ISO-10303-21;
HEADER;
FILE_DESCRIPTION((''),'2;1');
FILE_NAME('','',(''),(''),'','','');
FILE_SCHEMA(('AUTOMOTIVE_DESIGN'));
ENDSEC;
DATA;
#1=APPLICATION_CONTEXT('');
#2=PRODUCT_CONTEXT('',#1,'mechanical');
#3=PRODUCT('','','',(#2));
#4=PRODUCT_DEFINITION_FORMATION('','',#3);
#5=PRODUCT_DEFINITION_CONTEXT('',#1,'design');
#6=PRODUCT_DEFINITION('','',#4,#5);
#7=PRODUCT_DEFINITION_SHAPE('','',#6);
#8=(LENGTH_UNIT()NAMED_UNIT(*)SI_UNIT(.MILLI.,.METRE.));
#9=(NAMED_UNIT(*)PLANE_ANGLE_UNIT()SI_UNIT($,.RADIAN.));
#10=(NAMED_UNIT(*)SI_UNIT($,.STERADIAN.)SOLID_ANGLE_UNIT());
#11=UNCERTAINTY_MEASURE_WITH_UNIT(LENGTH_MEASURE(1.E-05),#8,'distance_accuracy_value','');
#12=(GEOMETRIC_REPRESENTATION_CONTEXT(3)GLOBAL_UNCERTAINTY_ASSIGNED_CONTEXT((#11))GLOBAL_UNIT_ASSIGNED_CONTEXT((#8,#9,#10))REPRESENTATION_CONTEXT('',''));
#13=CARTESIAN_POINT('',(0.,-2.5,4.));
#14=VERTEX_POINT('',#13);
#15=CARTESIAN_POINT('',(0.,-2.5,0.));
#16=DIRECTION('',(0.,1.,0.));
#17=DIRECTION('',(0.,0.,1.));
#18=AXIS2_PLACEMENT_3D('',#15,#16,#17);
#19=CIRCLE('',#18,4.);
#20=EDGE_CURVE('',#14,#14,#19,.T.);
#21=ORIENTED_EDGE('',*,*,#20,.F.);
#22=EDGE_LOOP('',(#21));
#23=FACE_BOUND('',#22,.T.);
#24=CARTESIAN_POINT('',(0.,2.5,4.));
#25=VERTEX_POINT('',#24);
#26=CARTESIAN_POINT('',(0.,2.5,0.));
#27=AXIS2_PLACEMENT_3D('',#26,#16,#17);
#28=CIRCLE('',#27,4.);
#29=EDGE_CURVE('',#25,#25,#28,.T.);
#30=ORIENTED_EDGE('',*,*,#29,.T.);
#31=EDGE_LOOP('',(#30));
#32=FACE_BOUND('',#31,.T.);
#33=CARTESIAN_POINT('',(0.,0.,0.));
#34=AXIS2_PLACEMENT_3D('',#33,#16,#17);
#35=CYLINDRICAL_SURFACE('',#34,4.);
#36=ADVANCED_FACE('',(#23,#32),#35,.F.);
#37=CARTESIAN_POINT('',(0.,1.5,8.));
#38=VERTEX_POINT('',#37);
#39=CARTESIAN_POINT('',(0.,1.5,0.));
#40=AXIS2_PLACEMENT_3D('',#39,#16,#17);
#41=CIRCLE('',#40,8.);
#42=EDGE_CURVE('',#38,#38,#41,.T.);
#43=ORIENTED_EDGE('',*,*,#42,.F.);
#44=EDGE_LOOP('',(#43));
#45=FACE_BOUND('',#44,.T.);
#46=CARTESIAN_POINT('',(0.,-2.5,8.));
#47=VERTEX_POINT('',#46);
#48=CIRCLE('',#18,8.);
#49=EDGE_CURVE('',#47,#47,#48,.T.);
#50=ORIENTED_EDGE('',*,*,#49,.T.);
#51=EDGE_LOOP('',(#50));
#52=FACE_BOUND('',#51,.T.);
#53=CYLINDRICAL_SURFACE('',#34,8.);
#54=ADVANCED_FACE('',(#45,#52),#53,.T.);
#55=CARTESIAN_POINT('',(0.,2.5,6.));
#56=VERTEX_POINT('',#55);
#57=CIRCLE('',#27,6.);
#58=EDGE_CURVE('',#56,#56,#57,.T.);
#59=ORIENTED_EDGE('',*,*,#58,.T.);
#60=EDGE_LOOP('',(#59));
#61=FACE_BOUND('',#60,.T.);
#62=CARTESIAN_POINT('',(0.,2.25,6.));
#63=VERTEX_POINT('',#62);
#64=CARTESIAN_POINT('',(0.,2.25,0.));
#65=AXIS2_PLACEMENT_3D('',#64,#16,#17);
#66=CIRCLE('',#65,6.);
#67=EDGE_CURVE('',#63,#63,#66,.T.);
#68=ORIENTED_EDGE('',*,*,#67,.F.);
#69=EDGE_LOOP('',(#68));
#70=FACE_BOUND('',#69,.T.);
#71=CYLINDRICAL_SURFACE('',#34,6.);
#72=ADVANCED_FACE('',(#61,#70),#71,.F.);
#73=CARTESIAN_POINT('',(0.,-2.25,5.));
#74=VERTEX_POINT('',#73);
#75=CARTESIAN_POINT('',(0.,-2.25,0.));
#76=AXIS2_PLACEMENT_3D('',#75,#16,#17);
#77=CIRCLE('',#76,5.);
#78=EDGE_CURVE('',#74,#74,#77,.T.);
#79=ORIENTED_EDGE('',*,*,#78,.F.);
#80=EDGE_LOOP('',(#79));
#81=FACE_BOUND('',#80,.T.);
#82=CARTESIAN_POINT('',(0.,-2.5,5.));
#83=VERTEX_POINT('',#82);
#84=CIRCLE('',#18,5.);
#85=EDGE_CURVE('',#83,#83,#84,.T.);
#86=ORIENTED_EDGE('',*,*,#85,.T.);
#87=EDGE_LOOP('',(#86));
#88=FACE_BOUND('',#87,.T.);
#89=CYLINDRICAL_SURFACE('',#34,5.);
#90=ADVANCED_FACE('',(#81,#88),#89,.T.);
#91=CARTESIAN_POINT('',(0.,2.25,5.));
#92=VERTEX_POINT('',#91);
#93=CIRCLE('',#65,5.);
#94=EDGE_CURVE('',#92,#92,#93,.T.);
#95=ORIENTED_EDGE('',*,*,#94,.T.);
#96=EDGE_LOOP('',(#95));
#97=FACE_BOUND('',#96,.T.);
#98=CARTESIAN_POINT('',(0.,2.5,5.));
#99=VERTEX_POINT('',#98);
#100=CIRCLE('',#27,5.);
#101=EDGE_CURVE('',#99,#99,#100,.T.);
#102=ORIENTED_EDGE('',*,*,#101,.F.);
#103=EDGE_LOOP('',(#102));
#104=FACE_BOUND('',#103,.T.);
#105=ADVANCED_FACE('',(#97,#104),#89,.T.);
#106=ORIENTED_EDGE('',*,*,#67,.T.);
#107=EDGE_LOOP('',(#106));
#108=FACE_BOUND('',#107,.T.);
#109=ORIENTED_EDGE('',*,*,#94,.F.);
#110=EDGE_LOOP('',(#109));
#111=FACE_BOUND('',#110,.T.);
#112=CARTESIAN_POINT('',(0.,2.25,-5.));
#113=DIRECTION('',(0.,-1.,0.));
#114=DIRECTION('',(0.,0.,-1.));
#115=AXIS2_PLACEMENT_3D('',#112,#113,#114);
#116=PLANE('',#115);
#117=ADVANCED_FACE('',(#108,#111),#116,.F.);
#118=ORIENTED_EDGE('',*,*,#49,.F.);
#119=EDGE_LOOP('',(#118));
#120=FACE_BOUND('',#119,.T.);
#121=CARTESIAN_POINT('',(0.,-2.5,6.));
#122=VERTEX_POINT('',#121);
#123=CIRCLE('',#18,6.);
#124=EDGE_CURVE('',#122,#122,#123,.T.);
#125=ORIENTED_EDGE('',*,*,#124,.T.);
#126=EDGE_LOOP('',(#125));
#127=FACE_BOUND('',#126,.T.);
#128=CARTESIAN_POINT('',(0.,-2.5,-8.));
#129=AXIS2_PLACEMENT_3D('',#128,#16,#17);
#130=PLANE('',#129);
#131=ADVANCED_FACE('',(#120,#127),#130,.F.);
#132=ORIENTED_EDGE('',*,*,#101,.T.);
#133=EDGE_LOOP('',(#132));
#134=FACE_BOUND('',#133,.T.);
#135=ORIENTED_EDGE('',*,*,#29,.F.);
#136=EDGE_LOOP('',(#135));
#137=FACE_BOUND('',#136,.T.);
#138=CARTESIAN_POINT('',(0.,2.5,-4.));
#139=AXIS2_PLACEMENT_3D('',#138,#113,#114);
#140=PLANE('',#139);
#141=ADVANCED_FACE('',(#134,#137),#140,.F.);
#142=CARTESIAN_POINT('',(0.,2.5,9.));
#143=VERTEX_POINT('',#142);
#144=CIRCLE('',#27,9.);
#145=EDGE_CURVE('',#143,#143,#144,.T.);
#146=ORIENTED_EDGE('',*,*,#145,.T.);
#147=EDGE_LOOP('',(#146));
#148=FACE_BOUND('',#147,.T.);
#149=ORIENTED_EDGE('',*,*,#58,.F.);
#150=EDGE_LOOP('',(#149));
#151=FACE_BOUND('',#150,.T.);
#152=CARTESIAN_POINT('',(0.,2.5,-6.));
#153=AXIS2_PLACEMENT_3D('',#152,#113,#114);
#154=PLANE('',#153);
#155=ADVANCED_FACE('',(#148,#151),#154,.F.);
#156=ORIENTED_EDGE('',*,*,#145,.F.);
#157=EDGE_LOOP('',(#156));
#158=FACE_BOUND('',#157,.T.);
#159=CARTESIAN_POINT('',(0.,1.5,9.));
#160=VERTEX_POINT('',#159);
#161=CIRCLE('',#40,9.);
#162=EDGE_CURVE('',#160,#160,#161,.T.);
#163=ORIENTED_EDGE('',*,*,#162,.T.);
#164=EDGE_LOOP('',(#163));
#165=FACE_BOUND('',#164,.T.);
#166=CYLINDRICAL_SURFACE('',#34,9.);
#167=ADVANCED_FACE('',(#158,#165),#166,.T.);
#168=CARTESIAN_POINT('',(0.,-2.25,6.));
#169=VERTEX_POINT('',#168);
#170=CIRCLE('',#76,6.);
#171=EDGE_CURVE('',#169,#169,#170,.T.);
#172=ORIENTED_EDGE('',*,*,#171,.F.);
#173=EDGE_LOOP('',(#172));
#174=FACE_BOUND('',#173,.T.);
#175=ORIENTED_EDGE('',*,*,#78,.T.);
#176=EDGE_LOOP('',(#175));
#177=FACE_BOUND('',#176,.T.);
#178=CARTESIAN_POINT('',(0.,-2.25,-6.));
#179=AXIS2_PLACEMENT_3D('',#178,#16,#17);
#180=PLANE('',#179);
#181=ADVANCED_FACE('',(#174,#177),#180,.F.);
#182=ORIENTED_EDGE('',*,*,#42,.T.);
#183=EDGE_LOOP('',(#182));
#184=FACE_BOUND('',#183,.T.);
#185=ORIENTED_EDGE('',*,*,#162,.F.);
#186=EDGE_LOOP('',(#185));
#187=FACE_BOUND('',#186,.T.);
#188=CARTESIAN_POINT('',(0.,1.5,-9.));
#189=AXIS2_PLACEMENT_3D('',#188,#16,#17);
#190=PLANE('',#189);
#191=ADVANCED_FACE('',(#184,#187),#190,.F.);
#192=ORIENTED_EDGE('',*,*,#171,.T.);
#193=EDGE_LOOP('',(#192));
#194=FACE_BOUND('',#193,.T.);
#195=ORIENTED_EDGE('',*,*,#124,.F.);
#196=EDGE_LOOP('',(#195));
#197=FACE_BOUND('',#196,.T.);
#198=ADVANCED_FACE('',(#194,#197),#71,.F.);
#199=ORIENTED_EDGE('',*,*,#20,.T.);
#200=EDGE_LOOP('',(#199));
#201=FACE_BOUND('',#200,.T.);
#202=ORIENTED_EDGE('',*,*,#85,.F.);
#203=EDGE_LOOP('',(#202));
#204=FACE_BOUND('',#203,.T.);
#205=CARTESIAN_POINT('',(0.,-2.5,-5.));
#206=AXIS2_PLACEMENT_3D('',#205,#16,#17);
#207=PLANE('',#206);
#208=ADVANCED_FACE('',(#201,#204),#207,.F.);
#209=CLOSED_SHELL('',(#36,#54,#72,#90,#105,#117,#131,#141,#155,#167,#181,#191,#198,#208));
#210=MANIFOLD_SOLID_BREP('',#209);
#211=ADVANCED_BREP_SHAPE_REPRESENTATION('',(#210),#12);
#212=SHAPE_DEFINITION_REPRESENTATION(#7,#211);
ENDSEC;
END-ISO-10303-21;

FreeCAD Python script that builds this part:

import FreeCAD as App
import Part
import Sketcher

V = App.Vector

doc = App.newDocument("Part")
body = doc.addObject("PartDesign::Body", "Body")

# Sketch on YZ plane
sketch1 = doc.addObject("Sketcher::SketchObject", "Sketch")
body.addObject(sketch1)
sketch1.AttachmentSupport = (doc.YZ_Plane, [""])
sketch1.MapMode = "FlatFace"
sketch1.addGeometry(Part.LineSegment(V(1.5, -9, 0), V(2.5, -9, 0)), False)
sketch1.addGeometry(Part.LineSegment(V(2.5, -9, 0), V(2.5, -6, 0)), False)
sketch1.addGeometry(Part.LineSegment(V(2.5, -6, 0), V(2.25, -6, 0)), False)
sketch1.addGeometry(Part.LineSegment(V(2.25, -6, 0), V(2.25, -5, 0)), False)
sketch1.addGeometry(Part.LineSegment(V(2.25, -5, 0), V(2.5, -5, 0)), False)
sketch1.addGeometry(Part.LineSegment(V(2.5, -5, 0), V(2.5, -4, 0)), False)
sketch1.addGeometry(Part.LineSegment(V(2.5, -4, 0), V(-2.5, -4, 0)), False)
sketch1.addGeometry(Part.LineSegment(V(-2.5, -4, 0), V(-2.5, -5, 0)), False)
sketch1.addGeometry(Part.LineSegment(V(-2.5, -5, 0), V(-2.25, -5, 0)), False)
sketch1.addGeometry(Part.LineSegment(V(-2.25, -5, 0), V(-2.25, -6, 0)), False)
sketch1.addGeometry(Part.LineSegment(V(-2.25, -6, 0), V(-2.5, -6, 0)), False)
sketch1.addGeometry(Part.LineSegment(V(-2.5, -6, 0), V(-2.5, -8, 0)), False)
sketch1.addGeometry(Part.LineSegment(V(-2.5, -8, 0), V(1.5, -8, 0)), False)
sketch1.addGeometry(Part.LineSegment(V(1.5, -8, 0), V(1.5, -9, 0)), False)
sketch1.addConstraint(Sketcher.Constraint("Coincident", 0, 2, 1, 1))
sketch1.addConstraint(Sketcher.Constraint("Coincident", 1, 2, 2, 1))
sketch1.addConstraint(Sketcher.Constraint("Coincident", 2, 2, 3, 1))
sketch1.addConstraint(Sketcher.Constraint("Coincident", 3, 2, 4, 1))
sketch1.addConstraint(Sketcher.Constraint("Coincident", 4, 2, 5, 1))
sketch1.addConstraint(Sketcher.Constraint("Coincident", 5, 2, 6, 1))
sketch1.addConstraint(Sketcher.Constraint("Coincident", 6, 2, 7, 1))
sketch1.addConstraint(Sketcher.Constraint("Coincident", 7, 2, 8, 1))
sketch1.addConstraint(Sketcher.Constraint("Coincident", 8, 2, 9, 1))
sketch1.addConstraint(Sketcher.Constraint("Coincident", 9, 2, 10, 1))
sketch1.addConstraint(Sketcher.Constraint("Coincident", 10, 2, 11, 1))
sketch1.addConstraint(Sketcher.Constraint("Coincident", 11, 2, 12, 1))
sketch1.addConstraint(Sketcher.Constraint("Coincident", 12, 2, 13, 1))
sketch1.addConstraint(Sketcher.Constraint("Coincident", 13, 2, 0, 1))
sketch1.addConstraint(Sketcher.Constraint("Horizontal", 0))
sketch1.addConstraint(Sketcher.Constraint("Vertical", 1))
sketch1.addConstraint(Sketcher.Constraint("Horizontal", 2))
sketch1.addConstraint(Sketcher.Constraint("Vertical", 3))
sketch1.addConstraint(Sketcher.Constraint("Horizontal", 4))
sketch1.addConstraint(Sketcher.Constraint("Vertical", 5))
sketch1.addConstraint(Sketcher.Constraint("Horizontal", 6))
sketch1.addConstraint(Sketcher.Constraint("Vertical", 7))
sketch1.addConstraint(Sketcher.Constraint("Horizontal", 8))
sketch1.addConstraint(Sketcher.Constraint("Vertical", 9))
sketch1.addConstraint(Sketcher.Constraint("Horizontal", 10))
sketch1.addConstraint(Sketcher.Constraint("Vertical", 11))
sketch1.addConstraint(Sketcher.Constraint("Horizontal", 12))
sketch1.addConstraint(Sketcher.Constraint("Vertical", 13))
sketch1.addConstraint(Sketcher.Constraint("Symmetric", 4, 2, 7, 2, -2))
sketch1.addConstraint(Sketcher.Constraint("Symmetric", 2, 2, 9, 2, -2))
sketch1.addConstraint(Sketcher.Constraint("Vertical", 1, 2, 4, 2))
sketch1.addConstraint(Sketcher.Constraint("Vertical", 7, 2, 10, 2))
sketch1.addConstraint(Sketcher.Constraint("Equal", 0, 3))
sketch1.addConstraint(Sketcher.Constraint("Equal", 3, 5))
sketch1.addConstraint(Sketcher.Constraint("Equal", 9, 13))
sketch1.addConstraint(Sketcher.Constraint("DistanceX", 0, 1, 0, 2, 1.0))
sketch1.addConstraint(Sketcher.Constraint("DistanceX", 6, 2, 6, 1, 5.0))
sketch1.addConstraint(Sketcher.Constraint("DistanceY", 1, 1, 1, 2, 3.0))
sketch1.addConstraint(Sketcher.Constraint("DistanceY", 0, 2, -1, 1, 9.0))
sketch1.addConstraint(Sketcher.Constraint("DistanceX", 2, 2, 2, 1, 0.25))
revolution = doc.addObject("PartDesign::Revolution", "Revolution")
body.addObject(revolution)
revolution.Profile = sketch1
revolution.ReferenceAxis = (sketch1, ["H_Axis"])
revolution.Angle = 360

doc.recompute()
